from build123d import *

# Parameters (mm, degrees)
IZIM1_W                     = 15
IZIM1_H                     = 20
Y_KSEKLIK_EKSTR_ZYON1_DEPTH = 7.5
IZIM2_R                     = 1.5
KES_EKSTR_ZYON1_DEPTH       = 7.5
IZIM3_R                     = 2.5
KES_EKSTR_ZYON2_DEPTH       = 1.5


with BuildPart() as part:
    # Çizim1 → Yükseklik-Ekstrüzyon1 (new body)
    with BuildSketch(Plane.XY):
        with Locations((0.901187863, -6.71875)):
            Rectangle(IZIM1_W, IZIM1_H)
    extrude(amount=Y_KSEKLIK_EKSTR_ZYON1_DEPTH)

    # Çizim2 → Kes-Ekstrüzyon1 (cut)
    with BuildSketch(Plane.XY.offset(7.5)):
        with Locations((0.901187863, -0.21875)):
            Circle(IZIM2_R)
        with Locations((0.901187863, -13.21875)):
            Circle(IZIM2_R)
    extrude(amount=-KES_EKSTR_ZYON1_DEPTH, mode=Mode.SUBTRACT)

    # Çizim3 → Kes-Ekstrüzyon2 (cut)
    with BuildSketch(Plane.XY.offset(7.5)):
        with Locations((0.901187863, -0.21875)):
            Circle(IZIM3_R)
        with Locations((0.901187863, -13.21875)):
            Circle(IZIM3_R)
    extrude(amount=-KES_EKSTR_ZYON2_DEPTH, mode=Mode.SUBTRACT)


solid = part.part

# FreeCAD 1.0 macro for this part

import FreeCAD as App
import Part
import Sketcher
from FreeCAD import Vector


def add_polygon(sketch, points):
    """Adds a closed chain of lines whose ends are joined by coincident constraints."""
    first, n = sketch.GeometryCount, len(points)
    for a, b in zip(points, points[1:] + points[:1]):
        sketch.addGeometry(Part.LineSegment(App.Vector(*a, 0), App.Vector(*b, 0)), False)
    for i in range(n):
        sketch.addConstraint(Sketcher.Constraint("Coincident", first + i, 2, first + (i + 1) % n, 1))

doc = App.newDocument("Part")
body = doc.addObject("PartDesign::Body", "Body")

sketch1 = body.newObject("Sketcher::SketchObject", "Sketch")
sketch1.AttachmentSupport = (doc.getObject("XY_Plane"), [""])
sketch1.MapMode = "FlatFace"
add_polygon(sketch1, [(-7, 3), (-7, -17), (8, -17), (8, 3)])
sketch1.addConstraint([
    Sketcher.Constraint("Vertical", 0),
    Sketcher.Constraint("Horizontal", 1),
    Sketcher.Constraint("Vertical", 2),
    Sketcher.Constraint("Horizontal", 3),
    Sketcher.Constraint("DistanceX", 1, 1, 1, 2, 15.0),
    Sketcher.Constraint("DistanceY", 0, 2, 0, 1, 20.0),
    Sketcher.Constraint("DistanceY", 0, 2, -1, 1, 16.71875),
    Sketcher.Constraint("DistanceX", 0, 2, -1, 1, 6.598812),
])
pad1 = body.newObject("PartDesign::Pad", "Pad")
pad1.Profile = sketch1
pad1.Length = 7.5

sketch2 = body.newObject("Sketcher::SketchObject", "Sketch001")
sketch2.AttachmentSupport = (doc.getObject("XY_Plane"), [""])
sketch2.MapMode = "FlatFace"
sketch2.AttachmentOffset = App.Placement(Vector(0, 0, 7.5), App.Rotation())
sketch2.addGeometry([
    Part.Circle(Vector(0.9, -0.2, 0), Vector(0, 0, 1), 1.5),
    Part.Circle(Vector(0.9, -13.2, 0), Vector(0, 0, 1), 1.5),
], False)
sketch2.addConstraint([
    Sketcher.Constraint("Equal", 0, 1),
    Sketcher.Constraint("Vertical", 0, 3, 1, 3),
    Sketcher.Constraint("Diameter", 0, 3.0),
    Sketcher.Constraint("DistanceY", 1, 3, 0, 3, 13.0),
    Sketcher.Constraint("DistanceY", 0, 3, -1, 1, 0.21875),
    Sketcher.Constraint("DistanceX", -1, 1, 0, 3, 0.901188),
])
pocket1 = body.newObject("PartDesign::Pocket", "Pocket")
pocket1.Profile = sketch2
pocket1.Length = 7.5

sketch3 = body.newObject("Sketcher::SketchObject", "Sketch002")
sketch3.AttachmentSupport = (doc.getObject("XY_Plane"), [""])
sketch3.MapMode = "FlatFace"
sketch3.AttachmentOffset = App.Placement(Vector(0, 0, 7.5), App.Rotation())
sketch3.addGeometry([
    Part.Circle(Vector(0.9, -0.2, 0), Vector(0, 0, 1), 2.5),
    Part.Circle(Vector(0.9, -13.2, 0), Vector(0, 0, 1), 2.5),
], False)
sketch3.addConstraint([
    Sketcher.Constraint("Equal", 0, 1),
    Sketcher.Constraint("Vertical", 0, 3, 1, 3),
    Sketcher.Constraint("Diameter", 0, 5.0),
    Sketcher.Constraint("DistanceY", 1, 3, 0, 3, 13.0),
    Sketcher.Constraint("DistanceY", 0, 3, -1, 1, 0.21875),
    Sketcher.Constraint("DistanceX", -1, 1, 0, 3, 0.901188),
])
pocket2 = body.newObject("PartDesign::Pocket", "Pocket001")
pocket2.Profile = sketch3
pocket2.Length = 1.5

doc.recompute()
